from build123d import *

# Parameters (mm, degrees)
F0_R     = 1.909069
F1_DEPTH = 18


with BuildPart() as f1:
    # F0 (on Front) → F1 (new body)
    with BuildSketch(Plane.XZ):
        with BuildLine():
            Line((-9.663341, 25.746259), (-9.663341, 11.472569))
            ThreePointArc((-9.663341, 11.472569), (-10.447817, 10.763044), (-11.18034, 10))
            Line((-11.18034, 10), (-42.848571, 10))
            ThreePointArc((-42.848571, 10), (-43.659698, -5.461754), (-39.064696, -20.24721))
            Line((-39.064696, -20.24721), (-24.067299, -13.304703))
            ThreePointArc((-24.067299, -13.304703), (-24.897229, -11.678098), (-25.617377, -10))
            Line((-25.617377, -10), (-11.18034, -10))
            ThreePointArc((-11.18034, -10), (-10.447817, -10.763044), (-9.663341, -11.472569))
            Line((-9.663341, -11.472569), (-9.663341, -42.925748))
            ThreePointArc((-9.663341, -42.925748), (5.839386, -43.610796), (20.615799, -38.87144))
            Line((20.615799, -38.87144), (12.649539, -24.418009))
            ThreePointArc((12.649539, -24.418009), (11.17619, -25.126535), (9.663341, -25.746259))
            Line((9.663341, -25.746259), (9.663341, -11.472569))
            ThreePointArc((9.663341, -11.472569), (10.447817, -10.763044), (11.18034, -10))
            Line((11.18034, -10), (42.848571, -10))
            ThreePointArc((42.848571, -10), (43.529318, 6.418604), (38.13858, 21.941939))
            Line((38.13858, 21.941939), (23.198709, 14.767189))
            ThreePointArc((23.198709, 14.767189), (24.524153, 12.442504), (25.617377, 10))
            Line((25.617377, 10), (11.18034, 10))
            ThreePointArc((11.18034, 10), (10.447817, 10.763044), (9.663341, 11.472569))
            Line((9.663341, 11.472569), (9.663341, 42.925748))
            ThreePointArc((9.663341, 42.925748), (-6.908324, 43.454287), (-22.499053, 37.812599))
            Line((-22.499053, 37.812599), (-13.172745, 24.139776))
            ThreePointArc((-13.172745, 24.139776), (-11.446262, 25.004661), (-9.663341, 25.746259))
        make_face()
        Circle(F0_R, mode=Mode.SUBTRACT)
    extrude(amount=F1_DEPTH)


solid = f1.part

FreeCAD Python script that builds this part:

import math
import FreeCAD as App
import Part
import Sketcher

V = App.Vector
Q = App.Units.Quantity

doc = App.newDocument("Part")
body = doc.addObject("PartDesign::Body", "Body")

# Sketch on XZ plane
sketch1 = doc.addObject("Sketcher::SketchObject", "Sketch")
body.addObject(sketch1)
sketch1.AttachmentSupport = (doc.XZ_Plane, [""])
sketch1.MapMode = "FlatFace"
sketch1.addGeometry(Part.LineSegment(V(-9.663341, 25.746259, 0), V(-9.663341, 11.472569, 0)), False)
sketch1.addGeometry(Part.ArcOfCircle(Part.Circle(V(0.000041, -0.000043, 0), V(0, 0, 1), 15.000059), math.radians(130.107436), math.radians(138.189666)), False)
sketch1.addGeometry(Part.LineSegment(V(-11.18034, 10, 0), V(-42.848571, 10, 0)), False)
sketch1.addGeometry(Part.ArcOfCircle(Part.Circle(V(0.000005, 0.000001, 0), V(0, 0, 1), 44.000004), math.radians(166.863444), math.radians(207.397681)), False)
sketch1.addGeometry(Part.LineSegment(V(-39.064696, -20.24721, 0), V(-24.067299, -13.304703, 0)), False)
sketch1.addGeometry(Part.ArcOfCircle(Part.Circle(V(0.000141, 0.000066, 0), V(0, 0, 1), 27.500156), math.radians(-158.676292), math.radians(-151.065656)), False)
sketch1.addGeometry(Part.LineSegment(V(-25.617377, -10, 0), V(-11.18034, -10, 0)), False)
sketch1.addGeometry(Part.ArcOfCircle(Part.Circle(V(0.000041, 0.000043, 0), V(0, 0, 1), 15.000059), math.radians(-138.189666), math.radians(-130.107436)), False)
sketch1.addGeometry(Part.LineSegment(V(-9.663341, -11.472569, 0), V(-9.663341, -42.925748, 0)), False)
sketch1.addGeometry(Part.ArcOfCircle(Part.Circle(V(-0.000001, 0.000009, 0), V(0, 0, 1), 44.000009), math.radians(-102.686792), math.radians(-62.060381)), False)
sketch1.addGeometry(Part.LineSegment(V(20.615799, -38.87144, 0), V(12.649539, -24.418009, 0)), False)
sketch1.addGeometry(Part.ArcOfCircle(Part.Circle(V(-0.000094, 0.000207, 0), V(0, 0, 1), 27.500227), math.radians(-69.427353), math.radians(-62.613999)), False)
sketch1.addGeometry(Part.LineSegment(V(9.663341, -25.746259, 0), V(9.663341, -11.472569, 0)), False)
sketch1.addGeometry(Part.ArcOfCircle(Part.Circle(V(-0.000041, 0.000043, 0), V(0, 0, 1), 15.000059), math.radians(-49.892564), math.radians(-41.810334)), False)
sketch1.addGeometry(Part.LineSegment(V(11.18034, -10, 0), V(42.848571, -10, 0)), False)
sketch1.addGeometry(Part.ArcOfCircle(Part.Circle(V(0, -0.000001, 0), V(0, 0, 1), 44), math.radians(-13.136557), math.radians(29.912738)), False)
sketch1.addGeometry(Part.LineSegment(V(38.13858, 21.941939, 0), V(23.198709, 14.767189, 0)), False)
sketch1.addGeometry(Part.ArcOfCircle(Part.Circle(V(-0.000002, -0.000005, 0), V(0, 0, 1), 27.500004), math.radians(21.323694), math.radians(32.478887)), False)
sketch1.addGeometry(Part.LineSegment(V(25.617377, 10, 0), V(11.18034, 10, 0)), False)
sketch1.addGeometry(Part.ArcOfCircle(Part.Circle(V(-0.000041, -0.000043, 0), V(0, 0, 1), 15.000059), math.radians(41.810334), math.radians(49.892564)), False)
sketch1.addGeometry(Part.LineSegment(V(9.663341, 11.472569, 0), V(9.663341, 42.925748, 0)), False)
sketch1.addGeometry(Part.ArcOfCircle(Part.Circle(V(0, -0.000003, 0), V(0, 0, 1), 44.000002), math.radians(77.313205), math.radians(120.753267)), False)
sketch1.addGeometry(Part.LineSegment(V(-22.499053, 37.812599, 0), V(-13.172745, 24.139776, 0)), False)
sketch1.addGeometry(Part.ArcOfCircle(Part.Circle(V(0.000059, -0.000123, 0), V(0, 0, 1), 27.500136), math.radians(110.572639), math.radians(118.620677)), False)
sketch1.addGeometry(Part.Circle(V(0, 0, 0), V(0, 0, 1), 1.909069), False)
sketch1.addConstraint(Sketcher.Constraint("Coincident", 0, 2, 1, 1))
sketch1.addConstraint(Sketcher.Constraint("Coincident", 1, 2, 2, 1))
sketch1.addConstraint(Sketcher.Constraint("Coincident", 2, 2, 3, 1))
sketch1.addConstraint(Sketcher.Constraint("Coincident", 3, 2, 4, 1))
sketch1.addConstraint(Sketcher.Constraint("Coincident", 4, 2, 5, 2))
sketch1.addConstraint(Sketcher.Constraint("Coincident", 5, 1, 6, 1))
sketch1.addConstraint(Sketcher.Constraint("Coincident", 6, 2, 7, 1))
sketch1.addConstraint(Sketcher.Constraint("Coincident", 7, 2, 8, 1))
sketch1.addConstraint(Sketcher.Constraint("Coincident", 8, 2, 9, 1))
sketch1.addConstraint(Sketcher.Constraint("Coincident", 9, 2, 10, 1))
sketch1.addConstraint(Sketcher.Constraint("Coincident", 10, 2, 11, 2))
sketch1.addConstraint(Sketcher.Constraint("Coincident", 11, 1, 12, 1))
sketch1.addConstraint(Sketcher.Constraint("Coincident", 12, 2, 13, 1))
sketch1.addConstraint(Sketcher.Constraint("Coincident", 13, 2, 14, 1))
sketch1.addConstraint(Sketcher.Constraint("Coincident", 14, 2, 15, 1))
sketch1.addConstraint(Sketcher.Constraint("Coincident", 15, 2, 16, 1))
sketch1.addConstraint(Sketcher.Constraint("Coincident", 16, 2, 17, 2))
sketch1.addConstraint(Sketcher.Constraint("Coincident", 17, 1, 18, 1))
sketch1.addConstraint(Sketcher.Constraint("Coincident", 18, 2, 19, 1))
sketch1.addConstraint(Sketcher.Constraint("Coincident", 19, 2, 20, 1))
sketch1.addConstraint(Sketcher.Constraint("Coincident", 20, 2, 21, 1))
sketch1.addConstraint(Sketcher.Constraint("Coincident", 21, 2, 22, 1))
sketch1.addConstraint(Sketcher.Constraint("Coincident", 22, 2, 23, 2))
sketch1.addConstraint(Sketcher.Constraint("Coincident", 23, 1, 0, 1))
sketch1.addConstraint(Sketcher.Constraint("Vertical", 0))
sketch1.addConstraint(Sketcher.Constraint("Horizontal", 2))
sketch1.addConstraint(Sketcher.Constraint("Horizontal", 6))
sketch1.addConstraint(Sketcher.Constraint("Vertical", 8))
sketch1.addConstraint(Sketcher.Constraint("Vertical", 12))
sketch1.addConstraint(Sketcher.Constraint("Horizontal", 14))
sketch1.addConstraint(Sketcher.Constraint("Horizontal", 18))
sketch1.addConstraint(Sketcher.Constraint("Vertical", 20))
sketch1.addConstraint(Sketcher.Constraint("Coincident", 3, 3, -1, 1))
sketch1.addConstraint(Sketcher.Constraint("Coincident", 9, 3, -1, 1))
sketch1.addConstraint(Sketcher.Constraint("Coincident", 15, 3, -1, 1))
sketch1.addConstraint(Sketcher.Constraint("Coincident", 17, 3, -1, 1))
sketch1.addConstraint(Sketcher.Constraint("Coincident", 21, 3, -1, 1))
sketch1.addConstraint(Sketcher.Constraint("Coincident", 24, 3, -1, 1))
sketch1.addConstraint(Sketcher.Constraint("Equal", 1, 7))
sketch1.addConstraint(Sketcher.Constraint("Equal", 7, 13))
sketch1.addConstraint(Sketcher.Constraint("Equal", 13, 19))
sketch1.addConstraint(Sketcher.Constraint("Equal", 3, 21))
sketch1.addConstraint(Sketcher.Constraint("Symmetric", 1, 3, 13, 3, -1, 1))
sketch1.addConstraint(Sketcher.Constraint("Symmetric", 7, 3, 19, 3, -1, 1))
sketch1.addConstraint(Sketcher.Constraint("Symmetric", 2, 2, 14, 2, -1, 1))
sketch1.addConstraint(Sketcher.Constraint("Symmetric", 5, 1, 17, 1, -1, 1))
sketch1.addConstraint(Sketcher.Constraint("Symmetric", 8, 2, 20, 2, -1, 1))
sketch1.addConstraint(Sketcher.Constraint("Symmetric", 11, 1, 23, 1, -1, 1))
sketch1.addConstraint(Sketcher.Constraint("Symmetric", 7, 3, 13, 3, -2))
sketch1.addConstraint(Sketcher.Constraint("Horizontal", 7, 2, 12, 2))
sketch1.addConstraint(Sketcher.Constraint("Horizontal", 6, 2, 13, 2))
sketch1.addConstraint(Sketcher.Constraint("Radius", 15, Q("44 mm")))
sketch1.addConstraint(Sketcher.Constraint("DistanceY", -1, 1, 1, 2, Q("10 mm")))
sketch1.addConstraint(Sketcher.Constraint("Radius", 1, Q("15.000059 mm")))
sketch1.addConstraint(Sketcher.Constraint("Diameter", 24, Q("3.818138 mm")))
sketch1.addConstraint(Sketcher.Constraint("Radius", 5, Q("27.500156 mm")))
sketch1.addConstraint(Sketcher.Constraint("Radius", 11, Q("27.500227 mm")))
sketch1.addConstraint(Sketcher.Constraint("Radius", 17, Q("27.500004 mm")))
sketch1.addConstraint(Sketcher.Constraint("Radius", 23, Q("27.500136 mm")))
sketch1.addConstraint(Sketcher.Constraint("DistanceX", 1, 2, 0, 2, Q("1.516999 mm")))
sketch1.addConstraint(Sketcher.Constraint("DistanceX", 2, 2, 2, 1, Q("31.668231 mm")))
sketch1.addConstraint(Sketcher.Constraint("DistanceY", 0, 2, 0, 1, Q("14.27369 mm")))
sketch1.addConstraint(Sketcher.Constraint("DistanceY", 8, 2, 8, 1, Q("31.453179 mm")))
sketch1.addConstraint(Sketcher.Constraint("DistanceX", 4, 2, -1, 1, Q("24.067299 mm")))
sketch1.addConstraint(Sketcher.Constraint("DistanceX", -1, 1, 9, 2, Q("20.615799 mm")))
sketch1.addConstraint(Sketcher.Constraint("DistanceY", -1, 1, 21, 2, Q("37.812599 mm")))
sketch1.addConstraint(Sketcher.Constraint("DistanceX", 1, 3, 5, 3, Q("0.000101 mm")))
sketch1.addConstraint(Sketcher.Constraint("DistanceX", 6, 2, 23, 3, Q("11.180399 mm")))
sketch1.addConstraint(Sketcher.Constraint("DistanceX", 1, 3, 10, 2, Q("12.649498 mm")))
sketch1.addConstraint(Sketcher.Constraint("DistanceY", 3, 2, -1, 1, Q("20.24721 mm")))
sketch1.addConstraint(Sketcher.Constraint("DistanceY", 10, 2, -1, 1, Q("24.418009 mm")))
sketch1.addConstraint(Sketcher.Constraint("DistanceX", -1, 1, 15, 2, Q("38.13858 mm")))
sketch1.addConstraint(Sketcher.Constraint("DistanceX", -1, 1, 16, 2, Q("23.198709 mm")))
sketch1.addConstraint(Sketcher.Constraint("DistanceX", 21, 2, 22, 2, Q("9.326308 mm")))
pad1 = doc.addObject("PartDesign::Pad", "Pad")
body.addObject(pad1)
pad1.Profile = sketch1
pad1.Length = 18

doc.recompute()
